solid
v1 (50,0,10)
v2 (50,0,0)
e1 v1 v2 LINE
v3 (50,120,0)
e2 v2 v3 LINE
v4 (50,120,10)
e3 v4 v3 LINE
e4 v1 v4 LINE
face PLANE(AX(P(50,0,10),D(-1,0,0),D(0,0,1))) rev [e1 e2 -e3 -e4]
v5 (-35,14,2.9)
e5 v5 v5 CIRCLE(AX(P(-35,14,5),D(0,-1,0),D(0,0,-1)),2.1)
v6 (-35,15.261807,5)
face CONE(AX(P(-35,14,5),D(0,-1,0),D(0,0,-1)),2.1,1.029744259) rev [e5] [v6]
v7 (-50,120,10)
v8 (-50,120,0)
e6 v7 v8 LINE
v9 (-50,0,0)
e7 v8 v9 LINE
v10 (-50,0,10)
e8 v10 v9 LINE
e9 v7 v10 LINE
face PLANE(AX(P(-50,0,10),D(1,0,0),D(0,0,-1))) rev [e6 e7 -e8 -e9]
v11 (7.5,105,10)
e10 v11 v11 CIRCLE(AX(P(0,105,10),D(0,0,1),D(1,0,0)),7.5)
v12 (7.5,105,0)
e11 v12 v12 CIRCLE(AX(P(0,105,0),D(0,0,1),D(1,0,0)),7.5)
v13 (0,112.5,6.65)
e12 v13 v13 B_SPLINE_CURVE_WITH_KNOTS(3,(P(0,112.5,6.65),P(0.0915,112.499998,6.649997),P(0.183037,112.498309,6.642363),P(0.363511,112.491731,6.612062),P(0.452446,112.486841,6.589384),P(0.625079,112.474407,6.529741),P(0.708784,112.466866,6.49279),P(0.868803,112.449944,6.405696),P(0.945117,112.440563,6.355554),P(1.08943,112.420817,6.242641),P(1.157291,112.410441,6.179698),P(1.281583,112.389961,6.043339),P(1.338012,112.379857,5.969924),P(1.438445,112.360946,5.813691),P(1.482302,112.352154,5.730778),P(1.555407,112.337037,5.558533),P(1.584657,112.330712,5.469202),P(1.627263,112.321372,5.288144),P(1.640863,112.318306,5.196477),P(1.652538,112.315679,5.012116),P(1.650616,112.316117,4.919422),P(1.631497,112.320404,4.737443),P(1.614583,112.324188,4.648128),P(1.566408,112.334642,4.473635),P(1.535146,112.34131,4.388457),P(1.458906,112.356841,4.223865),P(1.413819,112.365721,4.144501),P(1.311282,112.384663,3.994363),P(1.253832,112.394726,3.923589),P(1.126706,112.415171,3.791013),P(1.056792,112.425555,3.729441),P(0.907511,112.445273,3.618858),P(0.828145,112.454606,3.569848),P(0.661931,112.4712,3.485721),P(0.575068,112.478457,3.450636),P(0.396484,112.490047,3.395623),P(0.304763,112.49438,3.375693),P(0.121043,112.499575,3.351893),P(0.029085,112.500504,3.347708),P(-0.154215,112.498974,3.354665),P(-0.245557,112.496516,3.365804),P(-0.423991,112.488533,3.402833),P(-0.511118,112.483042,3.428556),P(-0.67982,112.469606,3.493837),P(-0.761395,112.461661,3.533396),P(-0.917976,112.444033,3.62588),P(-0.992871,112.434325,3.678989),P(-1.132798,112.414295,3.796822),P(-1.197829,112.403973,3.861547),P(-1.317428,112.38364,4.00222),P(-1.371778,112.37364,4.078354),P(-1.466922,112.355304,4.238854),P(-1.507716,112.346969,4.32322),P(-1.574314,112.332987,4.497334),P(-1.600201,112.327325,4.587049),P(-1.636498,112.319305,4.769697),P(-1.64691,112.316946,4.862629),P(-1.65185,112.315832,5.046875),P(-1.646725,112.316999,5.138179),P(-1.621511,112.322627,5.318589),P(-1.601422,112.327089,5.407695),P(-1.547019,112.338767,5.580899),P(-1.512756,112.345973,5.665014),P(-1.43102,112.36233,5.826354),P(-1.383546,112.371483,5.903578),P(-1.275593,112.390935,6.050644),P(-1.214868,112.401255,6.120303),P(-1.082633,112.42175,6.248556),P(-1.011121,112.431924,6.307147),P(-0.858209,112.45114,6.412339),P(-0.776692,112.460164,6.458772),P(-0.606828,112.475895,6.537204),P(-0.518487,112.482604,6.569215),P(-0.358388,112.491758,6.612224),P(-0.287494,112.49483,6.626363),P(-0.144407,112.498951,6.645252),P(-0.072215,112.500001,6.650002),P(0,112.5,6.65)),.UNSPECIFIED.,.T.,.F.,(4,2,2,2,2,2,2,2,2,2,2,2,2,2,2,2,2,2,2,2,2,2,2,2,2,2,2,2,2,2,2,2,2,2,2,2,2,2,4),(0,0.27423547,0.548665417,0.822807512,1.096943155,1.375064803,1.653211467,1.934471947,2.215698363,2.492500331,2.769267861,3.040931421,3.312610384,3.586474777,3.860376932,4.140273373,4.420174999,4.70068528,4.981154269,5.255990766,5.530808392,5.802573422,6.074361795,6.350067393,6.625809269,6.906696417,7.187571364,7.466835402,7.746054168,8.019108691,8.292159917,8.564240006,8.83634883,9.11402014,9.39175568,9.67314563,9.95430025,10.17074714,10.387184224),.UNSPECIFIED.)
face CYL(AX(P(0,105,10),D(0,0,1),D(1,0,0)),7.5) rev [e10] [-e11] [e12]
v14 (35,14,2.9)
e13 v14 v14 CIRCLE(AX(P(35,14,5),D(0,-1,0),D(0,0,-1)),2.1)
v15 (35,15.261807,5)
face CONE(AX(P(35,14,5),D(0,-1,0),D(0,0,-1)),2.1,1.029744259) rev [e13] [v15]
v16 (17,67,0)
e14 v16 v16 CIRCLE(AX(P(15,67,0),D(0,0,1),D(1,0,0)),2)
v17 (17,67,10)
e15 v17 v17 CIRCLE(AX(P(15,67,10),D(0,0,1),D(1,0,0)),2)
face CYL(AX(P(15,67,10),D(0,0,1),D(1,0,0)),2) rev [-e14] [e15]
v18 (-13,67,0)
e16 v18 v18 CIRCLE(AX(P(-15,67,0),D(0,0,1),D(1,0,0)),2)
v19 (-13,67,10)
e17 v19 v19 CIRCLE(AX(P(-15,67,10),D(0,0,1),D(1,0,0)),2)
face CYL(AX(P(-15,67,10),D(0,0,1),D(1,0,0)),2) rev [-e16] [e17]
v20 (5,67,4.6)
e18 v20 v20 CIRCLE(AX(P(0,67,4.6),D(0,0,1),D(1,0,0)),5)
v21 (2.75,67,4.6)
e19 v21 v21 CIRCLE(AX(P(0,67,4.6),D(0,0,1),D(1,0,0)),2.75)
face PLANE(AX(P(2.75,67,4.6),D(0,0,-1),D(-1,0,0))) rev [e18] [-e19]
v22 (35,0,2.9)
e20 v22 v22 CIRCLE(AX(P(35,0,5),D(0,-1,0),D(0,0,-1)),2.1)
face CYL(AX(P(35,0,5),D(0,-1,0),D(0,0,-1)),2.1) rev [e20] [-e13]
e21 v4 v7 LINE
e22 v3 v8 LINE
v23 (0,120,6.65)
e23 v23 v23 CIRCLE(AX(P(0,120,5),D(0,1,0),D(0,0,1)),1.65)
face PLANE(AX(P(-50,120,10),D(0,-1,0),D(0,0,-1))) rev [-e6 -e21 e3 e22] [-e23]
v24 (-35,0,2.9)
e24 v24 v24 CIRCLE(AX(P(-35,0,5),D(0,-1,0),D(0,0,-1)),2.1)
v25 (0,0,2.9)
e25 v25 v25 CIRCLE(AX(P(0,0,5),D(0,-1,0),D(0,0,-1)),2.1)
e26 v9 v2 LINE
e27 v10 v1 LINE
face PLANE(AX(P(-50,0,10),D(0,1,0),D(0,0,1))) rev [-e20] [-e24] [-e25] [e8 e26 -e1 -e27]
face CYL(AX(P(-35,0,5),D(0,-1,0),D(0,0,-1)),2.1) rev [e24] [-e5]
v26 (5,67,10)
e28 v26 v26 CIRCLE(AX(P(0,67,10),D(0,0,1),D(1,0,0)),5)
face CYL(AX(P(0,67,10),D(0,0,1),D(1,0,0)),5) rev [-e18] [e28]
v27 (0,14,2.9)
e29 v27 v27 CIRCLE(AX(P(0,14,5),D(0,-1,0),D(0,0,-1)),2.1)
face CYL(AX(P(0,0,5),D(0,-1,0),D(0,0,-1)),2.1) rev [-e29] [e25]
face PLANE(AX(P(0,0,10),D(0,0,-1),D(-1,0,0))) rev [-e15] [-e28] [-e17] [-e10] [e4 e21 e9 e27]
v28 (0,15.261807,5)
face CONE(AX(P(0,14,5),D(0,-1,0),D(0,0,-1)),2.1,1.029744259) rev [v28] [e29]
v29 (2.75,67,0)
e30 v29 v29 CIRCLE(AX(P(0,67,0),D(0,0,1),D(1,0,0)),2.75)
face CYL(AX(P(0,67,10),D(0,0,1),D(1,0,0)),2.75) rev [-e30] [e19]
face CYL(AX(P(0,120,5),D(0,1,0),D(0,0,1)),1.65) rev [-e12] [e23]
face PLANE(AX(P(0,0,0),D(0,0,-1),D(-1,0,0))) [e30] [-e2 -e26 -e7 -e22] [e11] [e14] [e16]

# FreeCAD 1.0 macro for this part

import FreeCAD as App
import Part
import Sketcher
Q = App.Units.Quantity


def add_polygon(sketch, points):
    """Adds a closed chain of lines whose ends are joined by coincident constraints."""
    first, n = sketch.GeometryCount, len(points)
    for a, b in zip(points, points[1:] + points[:1]):
        sketch.addGeometry(Part.LineSegment(App.Vector(*a, 0), App.Vector(*b, 0)), False)
    for i in range(n):
        sketch.addConstraint(Sketcher.Constraint("Coincident", first + i, 2, first + (i + 1) % n, 1))

doc = App.newDocument("Part")
params = doc.addObject("Spreadsheet::Sheet", "Params")
for row, (alias, value) in enumerate([
    ("sketch1_width", "100 mm"),
    ("sketch1_height", "120 mm"),
    ("pad1_length", "10 mm"),
    ("sketch2_diameter", "15 mm"),
    ("hole_diameter", "15 mm"),
    ("sketch3_diameter", "4.2 mm"),
    ("hole2_diameter", "4.2 mm"),
    ("hole2_depth", "14 mm"),
    ("sketch4_diameter", "3.3 mm"),
    ("hole3_diameter", "3.3 mm"),
    ("hole3_depth", "11.5 mm"),
    ("sketch5_diameter", "5.5 mm"),
    ("hole4_diameter", "5.5 mm"),
    ("hole4_cbore_diameter", "10 mm"),
    ("hole4_cbore_depth", "5.4 mm"),
    ("sketch6_diameter", "4 mm"),
    ("hole5_diameter", "4 mm"),
], start=1):
    params.set(f"A{row}", alias)
    params.set(f"B{row}", "=" + value)
    params.setAlias(f"B{row}", alias)

body = doc.addObject("PartDesign::Body", "Body")

# Sketch on XY plane
sketch1 = body.newObject("Sketcher::SketchObject", "Sketch")
sketch1.AttachmentSupport = (doc.getObject("XY_Plane"), [""])
sketch1.MapMode = "FlatFace"
add_polygon(sketch1, [(-50, 120), (-50, 0), (50, 0), (50, 120)])  # lines 0-3
sketch1.addConstraint(Sketcher.Constraint("Vertical", 0))
sketch1.addConstraint(Sketcher.Constraint("Horizontal", 1))
sketch1.addConstraint(Sketcher.Constraint("Vertical", 2))
sketch1.addConstraint(Sketcher.Constraint("Horizontal", 3))
sketch1.addConstraint(Sketcher.Constraint("Symmetric", 0, 2, 1, 2, -1, 1))
sketch1.addConstraint(Sketcher.Constraint("DistanceX", 1, 1, 1, 2, Q("100 mm")))
sketch1.addConstraint(Sketcher.Constraint("DistanceY", 0, 2, 0, 1, Q("120 mm")))
sketch1.setExpression("Constraints[9]", "Params.sketch1_width")
sketch1.setExpression("Constraints[10]", "Params.sketch1_height")
pad1 = body.newObject("PartDesign::Pad", "Pad")
pad1.Profile = sketch1
pad1.setExpression("Length", "Params.pad1_length")

# Sketch on XY plane
sketch2 = body.newObject("Sketcher::SketchObject", "Sketch001")
sketch2.AttachmentSupport = (doc.getObject("XY_Plane"), [""])
sketch2.MapMode = "FlatFace"
sketch2.AttachmentOffset = App.Placement(App.Vector(0, 0, 10), App.Rotation())
sketch2.addGeometry(Part.Circle(App.Vector(0, 105, 0), App.Vector(0, 0, 1), 7.5), False)
sketch2.addConstraint(Sketcher.Constraint("PointOnObject", 0, 3, -2))
sketch2.addConstraint(Sketcher.Constraint("Diameter", 0, Q("15 mm")))
sketch2.addConstraint(Sketcher.Constraint("DistanceY", -1, 1, 0, 3, Q("105 mm")))
sketch2.setExpression("Constraints[1]", "Params.sketch2_diameter")
doc.recompute()
hole = body.newObject("PartDesign::Hole", "Hole")
hole.Profile = sketch2
hole.ThreadType = "None"
hole.setExpression("Diameter", "Params.hole_diameter")
hole.DepthType = "ThroughAll"

# Sketch on XZ plane
sketch3 = body.newObject("Sketcher::SketchObject", "Sketch002")
sketch3.AttachmentSupport = (doc.getObject("XZ_Plane"), [""])
sketch3.MapMode = "FlatFace"
sketch3.addGeometry(Part.Circle(App.Vector(0, 5, 0), App.Vector(0, 0, 1), 2.1), False)
sketch3.addGeometry(Part.Circle(App.Vector(-35, 5, 0), App.Vector(0, 0, 1), 2.1), False)
sketch3.addGeometry(Part.Circle(App.Vector(35, 5, 0), App.Vector(0, 0, 1), 2.1), False)
sketch3.addConstraint(Sketcher.Constraint("Equal", 0, 1))
sketch3.addConstraint(Sketcher.Constraint("Equal", 1, 2))
sketch3.addConstraint(Sketcher.Constraint("Symmetric", 1, 3, 2, 3, -2))
sketch3.addConstraint(Sketcher.Constraint("PointOnObject", 0, 3, -2))
sketch3.addConstraint(Sketcher.Constraint("Horizontal", 0, 3, 1, 3))
sketch3.addConstraint(Sketcher.Constraint("Diameter", 0, Q("4.2 mm")))
sketch3.addConstraint(Sketcher.Constraint("DistanceY", -1, 1, 0, 3, Q("5 mm")))
sketch3.addConstraint(Sketcher.Constraint("DistanceX", 1, 3, -1, 1, Q("35 mm")))
sketch3.setExpression("Constraints[5]", "Params.sketch3_diameter")
doc.recompute()
hole2 = body.newObject("PartDesign::Hole", "Hole001")
hole2.Profile = sketch3
hole2.ThreadType = "None"
hole2.setExpression("Diameter", "Params.hole2_diameter")
hole2.DepthType = "Dimension"
hole2.setExpression("Depth", "Params.hole2_depth")
hole2.DrillPoint = "Angled"
hole2.DrillPointAngle = 118

# Sketch on XZ plane
sketch4 = body.newObject("Sketcher::SketchObject", "Sketch003")
sketch4.AttachmentSupport = (doc.getObject("XZ_Plane"), [""])
sketch4.MapMode = "FlatFace"
sketch4.AttachmentOffset = App.Placement(App.Vector(0, 0, -120), App.Rotation())
sketch4.addGeometry(Part.Circle(App.Vector(0, 5, 0), App.Vector(0, 0, 1), 1.65), False)
sketch4.addConstraint(Sketcher.Constraint("PointOnObject", 0, 3, -2))
sketch4.addConstraint(Sketcher.Constraint("Diameter", 0, Q("3.3 mm")))
sketch4.addConstraint(Sketcher.Constraint("DistanceY", -1, 1, 0, 3, Q("5 mm")))
sketch4.setExpression("Constraints[1]", "Params.sketch4_diameter")
doc.recompute()
hole3 = body.newObject("PartDesign::Hole", "Hole002")
hole3.Profile = sketch4
hole3.ThreadType = "None"
hole3.setExpression("Diameter", "Params.hole3_diameter")
hole3.DepthType = "Dimension"
hole3.setExpression("Depth", "Params.hole3_depth")
hole3.DrillPoint = "Angled"
hole3.DrillPointAngle = 118
hole3.Reversed = True

# Sketch on XY plane
sketch5 = body.newObject("Sketcher::SketchObject", "Sketch004")
sketch5.AttachmentSupport = (doc.getObject("XY_Plane"), [""])
sketch5.MapMode = "FlatFace"
sketch5.AttachmentOffset = App.Placement(App.Vector(0, 0, 10), App.Rotation())
sketch5.addGeometry(Part.Circle(App.Vector(0, 67, 0), App.Vector(0, 0, 1), 2.75), False)
sketch5.addConstraint(Sketcher.Constraint("PointOnObject", 0, 3, -2))
sketch5.addConstraint(Sketcher.Constraint("Diameter", 0, Q("5.5 mm")))
sketch5.addConstraint(Sketcher.Constraint("DistanceY", -1, 1, 0, 3, Q("67 mm")))
sketch5.setExpression("Constraints[1]", "Params.sketch5_diameter")
doc.recompute()
hole4 = body.newObject("PartDesign::Hole", "Hole003")
hole4.Profile = sketch5
hole4.ThreadType = "None"
hole4.setExpression("Diameter", "Params.hole4_diameter")
hole4.DepthType = "ThroughAll"
hole4.HoleCutType = "Counterbore"
hole4.setExpression("HoleCutDiameter", "Params.hole4_cbore_diameter")
hole4.setExpression("HoleCutDepth", "Params.hole4_cbore_depth")

# Sketch on XY plane
sketch6 = body.newObject("Sketcher::SketchObject", "Sketch005")
sketch6.AttachmentSupport = (doc.getObject("XY_Plane"), [""])
sketch6.MapMode = "FlatFace"
sketch6.AttachmentOffset = App.Placement(App.Vector(0, 0, 10), App.Rotation())
sketch6.addGeometry(Part.Circle(App.Vector(15, 67, 0), App.Vector(0, 0, 1), 2), False)
sketch6.addGeometry(Part.Circle(App.Vector(-15, 67, 0), App.Vector(0, 0, 1), 2), False)
sketch6.addConstraint(Sketcher.Constraint("Equal", 0, 1))
sketch6.addConstraint(Sketcher.Constraint("Symmetric", 0, 3, 1, 3, -2))
sketch6.addConstraint(Sketcher.Constraint("Diameter", 0, Q("4 mm")))
sketch6.addConstraint(Sketcher.Constraint("DistanceX", -1, 1, 0, 3, Q("15 mm")))
sketch6.addConstraint(Sketcher.Constraint("DistanceY", -1, 1, 0, 3, Q("67 mm")))
sketch6.setExpression("Constraints[2]", "Params.sketch6_diameter")
doc.recompute()
hole5 = body.newObject("PartDesign::Hole", "Hole004")
hole5.Profile = sketch6
hole5.ThreadType = "None"
hole5.setExpression("Diameter", "Params.hole5_diameter")
hole5.DepthType = "ThroughAll"

doc.recompute()
